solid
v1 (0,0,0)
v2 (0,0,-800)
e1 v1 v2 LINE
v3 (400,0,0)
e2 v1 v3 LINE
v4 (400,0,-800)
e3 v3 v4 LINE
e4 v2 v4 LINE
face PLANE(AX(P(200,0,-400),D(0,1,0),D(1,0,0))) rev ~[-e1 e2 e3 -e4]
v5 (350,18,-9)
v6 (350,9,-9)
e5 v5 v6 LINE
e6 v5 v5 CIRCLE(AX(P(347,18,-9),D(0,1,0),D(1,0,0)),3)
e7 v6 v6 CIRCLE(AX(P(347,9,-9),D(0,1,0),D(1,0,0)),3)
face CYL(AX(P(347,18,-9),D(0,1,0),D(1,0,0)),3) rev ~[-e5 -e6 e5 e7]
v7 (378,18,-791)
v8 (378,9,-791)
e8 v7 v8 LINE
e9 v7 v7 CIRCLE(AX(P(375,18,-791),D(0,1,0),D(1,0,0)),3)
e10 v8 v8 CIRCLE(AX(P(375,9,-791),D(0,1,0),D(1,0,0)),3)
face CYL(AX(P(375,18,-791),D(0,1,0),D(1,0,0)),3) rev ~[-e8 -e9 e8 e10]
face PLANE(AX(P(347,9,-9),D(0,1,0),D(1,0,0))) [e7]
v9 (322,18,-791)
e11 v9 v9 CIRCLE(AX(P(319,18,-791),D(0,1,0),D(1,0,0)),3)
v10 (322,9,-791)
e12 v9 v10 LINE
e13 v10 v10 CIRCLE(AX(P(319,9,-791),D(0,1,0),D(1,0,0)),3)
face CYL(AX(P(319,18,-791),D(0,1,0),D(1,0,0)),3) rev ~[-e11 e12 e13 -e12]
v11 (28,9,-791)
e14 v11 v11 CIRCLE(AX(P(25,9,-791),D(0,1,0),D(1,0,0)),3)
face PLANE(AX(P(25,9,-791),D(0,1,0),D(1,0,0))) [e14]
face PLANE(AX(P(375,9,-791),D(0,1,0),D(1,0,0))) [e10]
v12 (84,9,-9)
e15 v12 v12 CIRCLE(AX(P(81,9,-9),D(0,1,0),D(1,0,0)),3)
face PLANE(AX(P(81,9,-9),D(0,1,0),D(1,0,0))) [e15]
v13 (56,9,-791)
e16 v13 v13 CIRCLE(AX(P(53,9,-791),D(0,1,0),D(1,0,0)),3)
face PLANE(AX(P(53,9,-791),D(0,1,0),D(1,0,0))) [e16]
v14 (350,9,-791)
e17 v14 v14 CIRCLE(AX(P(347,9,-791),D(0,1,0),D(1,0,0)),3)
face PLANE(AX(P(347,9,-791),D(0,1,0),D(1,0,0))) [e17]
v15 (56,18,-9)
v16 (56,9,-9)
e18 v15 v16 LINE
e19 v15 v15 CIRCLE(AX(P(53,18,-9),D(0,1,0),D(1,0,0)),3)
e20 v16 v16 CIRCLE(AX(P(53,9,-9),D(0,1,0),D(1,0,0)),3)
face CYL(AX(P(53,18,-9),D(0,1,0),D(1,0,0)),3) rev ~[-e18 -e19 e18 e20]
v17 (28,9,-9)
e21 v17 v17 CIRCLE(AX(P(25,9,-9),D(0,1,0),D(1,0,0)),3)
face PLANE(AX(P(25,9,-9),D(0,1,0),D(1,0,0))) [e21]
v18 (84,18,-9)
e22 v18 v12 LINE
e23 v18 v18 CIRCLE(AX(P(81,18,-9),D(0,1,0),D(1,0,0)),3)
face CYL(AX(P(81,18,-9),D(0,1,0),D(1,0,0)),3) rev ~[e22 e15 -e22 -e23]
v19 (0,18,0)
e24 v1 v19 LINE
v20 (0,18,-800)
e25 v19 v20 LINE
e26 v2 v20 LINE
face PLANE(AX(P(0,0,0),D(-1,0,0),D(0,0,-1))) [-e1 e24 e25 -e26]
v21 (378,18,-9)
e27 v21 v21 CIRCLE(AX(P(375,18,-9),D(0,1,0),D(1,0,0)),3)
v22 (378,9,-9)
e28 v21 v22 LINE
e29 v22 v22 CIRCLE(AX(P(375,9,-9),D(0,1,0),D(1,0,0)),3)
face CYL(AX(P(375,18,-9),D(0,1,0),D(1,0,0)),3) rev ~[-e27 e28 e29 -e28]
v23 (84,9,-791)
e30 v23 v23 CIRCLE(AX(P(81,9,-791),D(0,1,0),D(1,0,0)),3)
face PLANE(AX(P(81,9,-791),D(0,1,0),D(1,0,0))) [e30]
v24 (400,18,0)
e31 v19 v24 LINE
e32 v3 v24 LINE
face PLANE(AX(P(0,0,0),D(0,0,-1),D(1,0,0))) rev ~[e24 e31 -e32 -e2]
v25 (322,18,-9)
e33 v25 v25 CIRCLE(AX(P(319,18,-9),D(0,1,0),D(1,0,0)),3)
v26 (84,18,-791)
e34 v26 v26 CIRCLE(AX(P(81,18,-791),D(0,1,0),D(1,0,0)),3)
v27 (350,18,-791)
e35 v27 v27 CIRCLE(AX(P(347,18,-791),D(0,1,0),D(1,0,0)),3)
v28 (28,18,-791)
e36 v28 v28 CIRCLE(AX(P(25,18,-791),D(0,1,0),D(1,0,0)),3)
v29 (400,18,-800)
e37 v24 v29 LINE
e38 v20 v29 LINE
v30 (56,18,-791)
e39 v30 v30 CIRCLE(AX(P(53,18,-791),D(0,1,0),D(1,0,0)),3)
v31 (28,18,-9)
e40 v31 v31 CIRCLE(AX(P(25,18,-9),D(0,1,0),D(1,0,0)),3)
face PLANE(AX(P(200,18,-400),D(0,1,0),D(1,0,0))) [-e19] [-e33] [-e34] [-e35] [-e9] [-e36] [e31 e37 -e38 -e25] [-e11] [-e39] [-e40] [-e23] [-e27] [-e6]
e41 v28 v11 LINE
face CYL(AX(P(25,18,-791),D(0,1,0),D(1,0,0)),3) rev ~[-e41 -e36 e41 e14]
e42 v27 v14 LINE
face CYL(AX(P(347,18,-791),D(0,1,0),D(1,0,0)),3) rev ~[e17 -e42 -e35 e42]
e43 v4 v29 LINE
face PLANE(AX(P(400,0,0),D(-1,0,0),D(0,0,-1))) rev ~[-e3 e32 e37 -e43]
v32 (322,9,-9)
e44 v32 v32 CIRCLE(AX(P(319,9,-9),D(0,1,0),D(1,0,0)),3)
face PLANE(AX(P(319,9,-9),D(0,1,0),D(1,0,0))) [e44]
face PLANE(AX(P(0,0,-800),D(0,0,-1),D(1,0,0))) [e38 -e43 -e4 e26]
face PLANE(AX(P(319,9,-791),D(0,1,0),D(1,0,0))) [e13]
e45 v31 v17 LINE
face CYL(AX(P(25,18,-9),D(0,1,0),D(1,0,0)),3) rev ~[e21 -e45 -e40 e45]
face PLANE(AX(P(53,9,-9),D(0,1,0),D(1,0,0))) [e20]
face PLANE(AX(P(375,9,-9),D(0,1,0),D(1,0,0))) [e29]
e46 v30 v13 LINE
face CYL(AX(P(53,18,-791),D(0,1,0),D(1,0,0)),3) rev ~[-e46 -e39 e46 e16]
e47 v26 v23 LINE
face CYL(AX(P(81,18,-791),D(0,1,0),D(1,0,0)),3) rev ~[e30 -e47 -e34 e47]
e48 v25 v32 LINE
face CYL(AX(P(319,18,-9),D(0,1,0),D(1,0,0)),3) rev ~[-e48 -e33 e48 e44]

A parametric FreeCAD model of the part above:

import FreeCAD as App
import Part
import Sketcher
Q = App.Units.Quantity

doc = App.newDocument("Part")
body = doc.addObject("PartDesign::Body", "Body")

sketch1 = body.newObject("Sketcher::SketchObject", "Sketch")
sketch1.AttachmentSupport = (doc.getObject("XZ_Plane"), [""])
sketch1.MapMode = "FlatFace"
sketch1.addGeometry(Part.LineSegment(App.Vector(0, -800, 0), App.Vector(0, 0, 0)), False)
sketch1.addGeometry(Part.LineSegment(App.Vector(0, 0, 0), App.Vector(400, 0, 0)), False)
sketch1.addGeometry(Part.LineSegment(App.Vector(400, 0, 0), App.Vector(400, -800, 0)), False)
sketch1.addGeometry(Part.LineSegment(App.Vector(400, -800, 0), App.Vector(0, -800, 0)), False)
sketch1.addConstraint(Sketcher.Constraint("Coincident", 0, 2, 1, 1))
sketch1.addConstraint(Sketcher.Constraint("Coincident", 1, 2, 2, 1))
sketch1.addConstraint(Sketcher.Constraint("Coincident", 2, 2, 3, 1))
sketch1.addConstraint(Sketcher.Constraint("Coincident", 3, 2, 0, 1))
sketch1.addConstraint(Sketcher.Constraint("Vertical", 0))
sketch1.addConstraint(Sketcher.Constraint("Horizontal", 1))
sketch1.addConstraint(Sketcher.Constraint("Vertical", 2))
sketch1.addConstraint(Sketcher.Constraint("Horizontal", 3))
sketch1.addConstraint(Sketcher.Constraint("Coincident", 0, 2, -1, 1))
sketch1.addConstraint(Sketcher.Constraint("DistanceX", 1, 1, 1, 2, Q("400 mm")))
sketch1.addConstraint(Sketcher.Constraint("DistanceY", 0, 1, 0, 2, Q("800 mm")))
pad1 = body.newObject("PartDesign::Pad", "Pad")
pad1.Profile = sketch1
pad1.Length = 18
pad1.Reversed = True

sketch2 = body.newObject("Sketcher::SketchObject", "Sketch001")
sketch2.AttachmentSupport = (doc.getObject("XZ_Plane"), [""])
sketch2.MapMode = "FlatFace"
sketch2.AttachmentOffset = App.Placement(App.Vector(0, 0, -18), App.Rotation())
sketch2.addGeometry(Part.Circle(App.Vector(25, -9, 0), App.Vector(0, 0, 1), 3), False)
sketch2.addGeometry(Part.Circle(App.Vector(53, -9, 0), App.Vector(0, 0, 1), 3), False)
sketch2.addGeometry(Part.Circle(App.Vector(81, -9, 0), App.Vector(0, 0, 1), 3), False)
sketch2.addGeometry(Part.Circle(App.Vector(319, -9, 0), App.Vector(0, 0, 1), 3), False)
sketch2.addGeometry(Part.Circle(App.Vector(347, -9, 0), App.Vector(0, 0, 1), 3), False)
sketch2.addGeometry(Part.Circle(App.Vector(375, -9, 0), App.Vector(0, 0, 1), 3), False)
sketch2.addGeometry(Part.Circle(App.Vector(375, -791, 0), App.Vector(0, 0, 1), 3), False)
sketch2.addGeometry(Part.Circle(App.Vector(347, -791, 0), App.Vector(0, 0, 1), 3), False)
sketch2.addGeometry(Part.Circle(App.Vector(319, -791, 0), App.Vector(0, 0, 1), 3), False)
sketch2.addGeometry(Part.Circle(App.Vector(81, -791, 0), App.Vector(0, 0, 1), 3), False)
sketch2.addGeometry(Part.Circle(App.Vector(53, -791, 0), App.Vector(0, 0, 1), 3), False)
sketch2.addGeometry(Part.Circle(App.Vector(25, -791, 0), App.Vector(0, 0, 1), 3), False)
sketch2.addConstraint(Sketcher.Constraint("Equal", 0, 1))
sketch2.addConstraint(Sketcher.Constraint("Equal", 1, 2))
sketch2.addConstraint(Sketcher.Constraint("Equal", 2, 3))
sketch2.addConstraint(Sketcher.Constraint("Equal", 3, 4))
sketch2.addConstraint(Sketcher.Constraint("Equal", 4, 5))
sketch2.addConstraint(Sketcher.Constraint("Equal", 5, 6))
sketch2.addConstraint(Sketcher.Constraint("Equal", 6, 7))
sketch2.addConstraint(Sketcher.Constraint("Equal", 7, 8))
sketch2.addConstraint(Sketcher.Constraint("Equal", 8, 9))
sketch2.addConstraint(Sketcher.Constraint("Equal", 9, 10))
sketch2.addConstraint(Sketcher.Constraint("Equal", 10, 11))
sketch2.addConstraint(Sketcher.Constraint("Horizontal", 0, 3, 1, 3))
sketch2.addConstraint(Sketcher.Constraint("Horizontal", 1, 3, 2, 3))
sketch2.addConstraint(Sketcher.Constraint("Horizontal", 2, 3, 3, 3))
sketch2.addConstraint(Sketcher.Constraint("Horizontal", 3, 3, 4, 3))
sketch2.addConstraint(Sketcher.Constraint("Horizontal", 4, 3, 5, 3))
sketch2.addConstraint(Sketcher.Constraint("Horizontal", 6, 3, 7, 3))
sketch2.addConstraint(Sketcher.Constraint("Horizontal", 7, 3, 8, 3))
sketch2.addConstraint(Sketcher.Constraint("Horizontal", 8, 3, 9, 3))
sketch2.addConstraint(Sketcher.Constraint("Horizontal", 9, 3, 10, 3))
sketch2.addConstraint(Sketcher.Constraint("Horizontal", 10, 3, 11, 3))
sketch2.addConstraint(Sketcher.Constraint("Vertical", 5, 3, 6, 3))
sketch2.addConstraint(Sketcher.Constraint("Vertical", 4, 3, 7, 3))
sketch2.addConstraint(Sketcher.Constraint("Vertical", 3, 3, 8, 3))
sketch2.addConstraint(Sketcher.Constraint("Vertical", 2, 3, 9, 3))
sketch2.addConstraint(Sketcher.Constraint("Vertical", 1, 3, 10, 3))
sketch2.addConstraint(Sketcher.Constraint("Vertical", 0, 3, 11, 3))
sketch2.addConstraint(Sketcher.Constraint("Diameter", 0, Q("6 mm")))
sketch2.addConstraint(Sketcher.Constraint("DistanceX", -1, 1, 0, 3, Q("25 mm")))
sketch2.addConstraint(Sketcher.Constraint("DistanceY", 0, 3, -1, 1, Q("9 mm")))
sketch2.addConstraint(Sketcher.Constraint("DistanceX", -1, 1, 1, 3, Q("53 mm")))
sketch2.addConstraint(Sketcher.Constraint("DistanceX", -1, 1, 2, 3, Q("81 mm")))
sketch2.addConstraint(Sketcher.Constraint("DistanceX", -1, 1, 3, 3, Q("319 mm")))
sketch2.addConstraint(Sketcher.Constraint("DistanceX", -1, 1, 4, 3, Q("347 mm")))
sketch2.addConstraint(Sketcher.Constraint("DistanceX", -1, 1, 5, 3, Q("375 mm")))
sketch2.addConstraint(Sketcher.Constraint("DistanceY", 6, 3, -1, 1, Q("791 mm")))
pocket1 = body.newObject("PartDesign::Pocket", "Pocket")
pocket1.Profile = sketch2
pocket1.Length = 9
pocket1.Reversed = True

doc.recompute()
